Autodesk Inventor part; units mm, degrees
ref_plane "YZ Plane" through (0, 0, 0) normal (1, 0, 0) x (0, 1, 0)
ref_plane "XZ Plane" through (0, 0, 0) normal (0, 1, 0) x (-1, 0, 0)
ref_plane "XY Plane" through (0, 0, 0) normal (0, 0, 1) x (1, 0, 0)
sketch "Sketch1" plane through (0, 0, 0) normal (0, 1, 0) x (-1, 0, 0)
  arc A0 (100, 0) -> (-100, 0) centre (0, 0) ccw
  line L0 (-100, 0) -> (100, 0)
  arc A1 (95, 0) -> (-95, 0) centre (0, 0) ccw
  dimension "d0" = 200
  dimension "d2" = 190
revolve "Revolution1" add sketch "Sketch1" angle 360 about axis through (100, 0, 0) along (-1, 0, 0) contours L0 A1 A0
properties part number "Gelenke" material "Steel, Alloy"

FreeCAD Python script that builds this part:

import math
import FreeCAD as App
import Part
import Sketcher

V = App.Vector

doc = App.newDocument("Part")
body = doc.addObject("PartDesign::Body", "Body")

sketch1 = body.newObject("Sketcher::SketchObject", "Sketch")
sketch1.AttachmentSupport = (doc.getObject("XZ_Plane"), [""])
sketch1.MapMode = "FlatFace"
sketch1.addGeometry([
    Part.LineSegment(V(-95, 0, 0), V(-100, 0, 0)),
    Part.ArcOfCircle(Part.Circle(V(0, 0, 0), V(0, 0, 1), 100), math.radians(0), math.radians(180)),
    Part.LineSegment(V(100, 0, 0), V(95, 0, 0)),
    Part.ArcOfCircle(Part.Circle(V(0, 0, 0), V(0, 0, 1), 95), math.radians(0), math.radians(180)),
], False)
sketch1.addConstraint([
    Sketcher.Constraint("Coincident", 0, 2, 1, 2),
    Sketcher.Constraint("Coincident", 1, 1, 2, 1),
    Sketcher.Constraint("Coincident", 2, 2, 3, 1),
    Sketcher.Constraint("Coincident", 3, 2, 0, 1),
    Sketcher.Constraint("Horizontal", 0),
    Sketcher.Constraint("Horizontal", 2),
    Sketcher.Constraint("Coincident", 1, 3, -1, 1),
    Sketcher.Constraint("Coincident", 3, 3, -1, 1),
    Sketcher.Constraint("PointOnObject", 0, 2, -1),
    Sketcher.Constraint("PointOnObject", 1, 1, -1),
    Sketcher.Constraint("Radius", 1, 100.0),
    Sketcher.Constraint("Radius", 3, 95.0),
])
revolution = body.newObject("PartDesign::Revolution", "Revolution")
revolution.Profile = sketch1
revolution.ReferenceAxis = (sketch1, ["H_Axis"])
revolution.Angle = 360

doc.recompute()
